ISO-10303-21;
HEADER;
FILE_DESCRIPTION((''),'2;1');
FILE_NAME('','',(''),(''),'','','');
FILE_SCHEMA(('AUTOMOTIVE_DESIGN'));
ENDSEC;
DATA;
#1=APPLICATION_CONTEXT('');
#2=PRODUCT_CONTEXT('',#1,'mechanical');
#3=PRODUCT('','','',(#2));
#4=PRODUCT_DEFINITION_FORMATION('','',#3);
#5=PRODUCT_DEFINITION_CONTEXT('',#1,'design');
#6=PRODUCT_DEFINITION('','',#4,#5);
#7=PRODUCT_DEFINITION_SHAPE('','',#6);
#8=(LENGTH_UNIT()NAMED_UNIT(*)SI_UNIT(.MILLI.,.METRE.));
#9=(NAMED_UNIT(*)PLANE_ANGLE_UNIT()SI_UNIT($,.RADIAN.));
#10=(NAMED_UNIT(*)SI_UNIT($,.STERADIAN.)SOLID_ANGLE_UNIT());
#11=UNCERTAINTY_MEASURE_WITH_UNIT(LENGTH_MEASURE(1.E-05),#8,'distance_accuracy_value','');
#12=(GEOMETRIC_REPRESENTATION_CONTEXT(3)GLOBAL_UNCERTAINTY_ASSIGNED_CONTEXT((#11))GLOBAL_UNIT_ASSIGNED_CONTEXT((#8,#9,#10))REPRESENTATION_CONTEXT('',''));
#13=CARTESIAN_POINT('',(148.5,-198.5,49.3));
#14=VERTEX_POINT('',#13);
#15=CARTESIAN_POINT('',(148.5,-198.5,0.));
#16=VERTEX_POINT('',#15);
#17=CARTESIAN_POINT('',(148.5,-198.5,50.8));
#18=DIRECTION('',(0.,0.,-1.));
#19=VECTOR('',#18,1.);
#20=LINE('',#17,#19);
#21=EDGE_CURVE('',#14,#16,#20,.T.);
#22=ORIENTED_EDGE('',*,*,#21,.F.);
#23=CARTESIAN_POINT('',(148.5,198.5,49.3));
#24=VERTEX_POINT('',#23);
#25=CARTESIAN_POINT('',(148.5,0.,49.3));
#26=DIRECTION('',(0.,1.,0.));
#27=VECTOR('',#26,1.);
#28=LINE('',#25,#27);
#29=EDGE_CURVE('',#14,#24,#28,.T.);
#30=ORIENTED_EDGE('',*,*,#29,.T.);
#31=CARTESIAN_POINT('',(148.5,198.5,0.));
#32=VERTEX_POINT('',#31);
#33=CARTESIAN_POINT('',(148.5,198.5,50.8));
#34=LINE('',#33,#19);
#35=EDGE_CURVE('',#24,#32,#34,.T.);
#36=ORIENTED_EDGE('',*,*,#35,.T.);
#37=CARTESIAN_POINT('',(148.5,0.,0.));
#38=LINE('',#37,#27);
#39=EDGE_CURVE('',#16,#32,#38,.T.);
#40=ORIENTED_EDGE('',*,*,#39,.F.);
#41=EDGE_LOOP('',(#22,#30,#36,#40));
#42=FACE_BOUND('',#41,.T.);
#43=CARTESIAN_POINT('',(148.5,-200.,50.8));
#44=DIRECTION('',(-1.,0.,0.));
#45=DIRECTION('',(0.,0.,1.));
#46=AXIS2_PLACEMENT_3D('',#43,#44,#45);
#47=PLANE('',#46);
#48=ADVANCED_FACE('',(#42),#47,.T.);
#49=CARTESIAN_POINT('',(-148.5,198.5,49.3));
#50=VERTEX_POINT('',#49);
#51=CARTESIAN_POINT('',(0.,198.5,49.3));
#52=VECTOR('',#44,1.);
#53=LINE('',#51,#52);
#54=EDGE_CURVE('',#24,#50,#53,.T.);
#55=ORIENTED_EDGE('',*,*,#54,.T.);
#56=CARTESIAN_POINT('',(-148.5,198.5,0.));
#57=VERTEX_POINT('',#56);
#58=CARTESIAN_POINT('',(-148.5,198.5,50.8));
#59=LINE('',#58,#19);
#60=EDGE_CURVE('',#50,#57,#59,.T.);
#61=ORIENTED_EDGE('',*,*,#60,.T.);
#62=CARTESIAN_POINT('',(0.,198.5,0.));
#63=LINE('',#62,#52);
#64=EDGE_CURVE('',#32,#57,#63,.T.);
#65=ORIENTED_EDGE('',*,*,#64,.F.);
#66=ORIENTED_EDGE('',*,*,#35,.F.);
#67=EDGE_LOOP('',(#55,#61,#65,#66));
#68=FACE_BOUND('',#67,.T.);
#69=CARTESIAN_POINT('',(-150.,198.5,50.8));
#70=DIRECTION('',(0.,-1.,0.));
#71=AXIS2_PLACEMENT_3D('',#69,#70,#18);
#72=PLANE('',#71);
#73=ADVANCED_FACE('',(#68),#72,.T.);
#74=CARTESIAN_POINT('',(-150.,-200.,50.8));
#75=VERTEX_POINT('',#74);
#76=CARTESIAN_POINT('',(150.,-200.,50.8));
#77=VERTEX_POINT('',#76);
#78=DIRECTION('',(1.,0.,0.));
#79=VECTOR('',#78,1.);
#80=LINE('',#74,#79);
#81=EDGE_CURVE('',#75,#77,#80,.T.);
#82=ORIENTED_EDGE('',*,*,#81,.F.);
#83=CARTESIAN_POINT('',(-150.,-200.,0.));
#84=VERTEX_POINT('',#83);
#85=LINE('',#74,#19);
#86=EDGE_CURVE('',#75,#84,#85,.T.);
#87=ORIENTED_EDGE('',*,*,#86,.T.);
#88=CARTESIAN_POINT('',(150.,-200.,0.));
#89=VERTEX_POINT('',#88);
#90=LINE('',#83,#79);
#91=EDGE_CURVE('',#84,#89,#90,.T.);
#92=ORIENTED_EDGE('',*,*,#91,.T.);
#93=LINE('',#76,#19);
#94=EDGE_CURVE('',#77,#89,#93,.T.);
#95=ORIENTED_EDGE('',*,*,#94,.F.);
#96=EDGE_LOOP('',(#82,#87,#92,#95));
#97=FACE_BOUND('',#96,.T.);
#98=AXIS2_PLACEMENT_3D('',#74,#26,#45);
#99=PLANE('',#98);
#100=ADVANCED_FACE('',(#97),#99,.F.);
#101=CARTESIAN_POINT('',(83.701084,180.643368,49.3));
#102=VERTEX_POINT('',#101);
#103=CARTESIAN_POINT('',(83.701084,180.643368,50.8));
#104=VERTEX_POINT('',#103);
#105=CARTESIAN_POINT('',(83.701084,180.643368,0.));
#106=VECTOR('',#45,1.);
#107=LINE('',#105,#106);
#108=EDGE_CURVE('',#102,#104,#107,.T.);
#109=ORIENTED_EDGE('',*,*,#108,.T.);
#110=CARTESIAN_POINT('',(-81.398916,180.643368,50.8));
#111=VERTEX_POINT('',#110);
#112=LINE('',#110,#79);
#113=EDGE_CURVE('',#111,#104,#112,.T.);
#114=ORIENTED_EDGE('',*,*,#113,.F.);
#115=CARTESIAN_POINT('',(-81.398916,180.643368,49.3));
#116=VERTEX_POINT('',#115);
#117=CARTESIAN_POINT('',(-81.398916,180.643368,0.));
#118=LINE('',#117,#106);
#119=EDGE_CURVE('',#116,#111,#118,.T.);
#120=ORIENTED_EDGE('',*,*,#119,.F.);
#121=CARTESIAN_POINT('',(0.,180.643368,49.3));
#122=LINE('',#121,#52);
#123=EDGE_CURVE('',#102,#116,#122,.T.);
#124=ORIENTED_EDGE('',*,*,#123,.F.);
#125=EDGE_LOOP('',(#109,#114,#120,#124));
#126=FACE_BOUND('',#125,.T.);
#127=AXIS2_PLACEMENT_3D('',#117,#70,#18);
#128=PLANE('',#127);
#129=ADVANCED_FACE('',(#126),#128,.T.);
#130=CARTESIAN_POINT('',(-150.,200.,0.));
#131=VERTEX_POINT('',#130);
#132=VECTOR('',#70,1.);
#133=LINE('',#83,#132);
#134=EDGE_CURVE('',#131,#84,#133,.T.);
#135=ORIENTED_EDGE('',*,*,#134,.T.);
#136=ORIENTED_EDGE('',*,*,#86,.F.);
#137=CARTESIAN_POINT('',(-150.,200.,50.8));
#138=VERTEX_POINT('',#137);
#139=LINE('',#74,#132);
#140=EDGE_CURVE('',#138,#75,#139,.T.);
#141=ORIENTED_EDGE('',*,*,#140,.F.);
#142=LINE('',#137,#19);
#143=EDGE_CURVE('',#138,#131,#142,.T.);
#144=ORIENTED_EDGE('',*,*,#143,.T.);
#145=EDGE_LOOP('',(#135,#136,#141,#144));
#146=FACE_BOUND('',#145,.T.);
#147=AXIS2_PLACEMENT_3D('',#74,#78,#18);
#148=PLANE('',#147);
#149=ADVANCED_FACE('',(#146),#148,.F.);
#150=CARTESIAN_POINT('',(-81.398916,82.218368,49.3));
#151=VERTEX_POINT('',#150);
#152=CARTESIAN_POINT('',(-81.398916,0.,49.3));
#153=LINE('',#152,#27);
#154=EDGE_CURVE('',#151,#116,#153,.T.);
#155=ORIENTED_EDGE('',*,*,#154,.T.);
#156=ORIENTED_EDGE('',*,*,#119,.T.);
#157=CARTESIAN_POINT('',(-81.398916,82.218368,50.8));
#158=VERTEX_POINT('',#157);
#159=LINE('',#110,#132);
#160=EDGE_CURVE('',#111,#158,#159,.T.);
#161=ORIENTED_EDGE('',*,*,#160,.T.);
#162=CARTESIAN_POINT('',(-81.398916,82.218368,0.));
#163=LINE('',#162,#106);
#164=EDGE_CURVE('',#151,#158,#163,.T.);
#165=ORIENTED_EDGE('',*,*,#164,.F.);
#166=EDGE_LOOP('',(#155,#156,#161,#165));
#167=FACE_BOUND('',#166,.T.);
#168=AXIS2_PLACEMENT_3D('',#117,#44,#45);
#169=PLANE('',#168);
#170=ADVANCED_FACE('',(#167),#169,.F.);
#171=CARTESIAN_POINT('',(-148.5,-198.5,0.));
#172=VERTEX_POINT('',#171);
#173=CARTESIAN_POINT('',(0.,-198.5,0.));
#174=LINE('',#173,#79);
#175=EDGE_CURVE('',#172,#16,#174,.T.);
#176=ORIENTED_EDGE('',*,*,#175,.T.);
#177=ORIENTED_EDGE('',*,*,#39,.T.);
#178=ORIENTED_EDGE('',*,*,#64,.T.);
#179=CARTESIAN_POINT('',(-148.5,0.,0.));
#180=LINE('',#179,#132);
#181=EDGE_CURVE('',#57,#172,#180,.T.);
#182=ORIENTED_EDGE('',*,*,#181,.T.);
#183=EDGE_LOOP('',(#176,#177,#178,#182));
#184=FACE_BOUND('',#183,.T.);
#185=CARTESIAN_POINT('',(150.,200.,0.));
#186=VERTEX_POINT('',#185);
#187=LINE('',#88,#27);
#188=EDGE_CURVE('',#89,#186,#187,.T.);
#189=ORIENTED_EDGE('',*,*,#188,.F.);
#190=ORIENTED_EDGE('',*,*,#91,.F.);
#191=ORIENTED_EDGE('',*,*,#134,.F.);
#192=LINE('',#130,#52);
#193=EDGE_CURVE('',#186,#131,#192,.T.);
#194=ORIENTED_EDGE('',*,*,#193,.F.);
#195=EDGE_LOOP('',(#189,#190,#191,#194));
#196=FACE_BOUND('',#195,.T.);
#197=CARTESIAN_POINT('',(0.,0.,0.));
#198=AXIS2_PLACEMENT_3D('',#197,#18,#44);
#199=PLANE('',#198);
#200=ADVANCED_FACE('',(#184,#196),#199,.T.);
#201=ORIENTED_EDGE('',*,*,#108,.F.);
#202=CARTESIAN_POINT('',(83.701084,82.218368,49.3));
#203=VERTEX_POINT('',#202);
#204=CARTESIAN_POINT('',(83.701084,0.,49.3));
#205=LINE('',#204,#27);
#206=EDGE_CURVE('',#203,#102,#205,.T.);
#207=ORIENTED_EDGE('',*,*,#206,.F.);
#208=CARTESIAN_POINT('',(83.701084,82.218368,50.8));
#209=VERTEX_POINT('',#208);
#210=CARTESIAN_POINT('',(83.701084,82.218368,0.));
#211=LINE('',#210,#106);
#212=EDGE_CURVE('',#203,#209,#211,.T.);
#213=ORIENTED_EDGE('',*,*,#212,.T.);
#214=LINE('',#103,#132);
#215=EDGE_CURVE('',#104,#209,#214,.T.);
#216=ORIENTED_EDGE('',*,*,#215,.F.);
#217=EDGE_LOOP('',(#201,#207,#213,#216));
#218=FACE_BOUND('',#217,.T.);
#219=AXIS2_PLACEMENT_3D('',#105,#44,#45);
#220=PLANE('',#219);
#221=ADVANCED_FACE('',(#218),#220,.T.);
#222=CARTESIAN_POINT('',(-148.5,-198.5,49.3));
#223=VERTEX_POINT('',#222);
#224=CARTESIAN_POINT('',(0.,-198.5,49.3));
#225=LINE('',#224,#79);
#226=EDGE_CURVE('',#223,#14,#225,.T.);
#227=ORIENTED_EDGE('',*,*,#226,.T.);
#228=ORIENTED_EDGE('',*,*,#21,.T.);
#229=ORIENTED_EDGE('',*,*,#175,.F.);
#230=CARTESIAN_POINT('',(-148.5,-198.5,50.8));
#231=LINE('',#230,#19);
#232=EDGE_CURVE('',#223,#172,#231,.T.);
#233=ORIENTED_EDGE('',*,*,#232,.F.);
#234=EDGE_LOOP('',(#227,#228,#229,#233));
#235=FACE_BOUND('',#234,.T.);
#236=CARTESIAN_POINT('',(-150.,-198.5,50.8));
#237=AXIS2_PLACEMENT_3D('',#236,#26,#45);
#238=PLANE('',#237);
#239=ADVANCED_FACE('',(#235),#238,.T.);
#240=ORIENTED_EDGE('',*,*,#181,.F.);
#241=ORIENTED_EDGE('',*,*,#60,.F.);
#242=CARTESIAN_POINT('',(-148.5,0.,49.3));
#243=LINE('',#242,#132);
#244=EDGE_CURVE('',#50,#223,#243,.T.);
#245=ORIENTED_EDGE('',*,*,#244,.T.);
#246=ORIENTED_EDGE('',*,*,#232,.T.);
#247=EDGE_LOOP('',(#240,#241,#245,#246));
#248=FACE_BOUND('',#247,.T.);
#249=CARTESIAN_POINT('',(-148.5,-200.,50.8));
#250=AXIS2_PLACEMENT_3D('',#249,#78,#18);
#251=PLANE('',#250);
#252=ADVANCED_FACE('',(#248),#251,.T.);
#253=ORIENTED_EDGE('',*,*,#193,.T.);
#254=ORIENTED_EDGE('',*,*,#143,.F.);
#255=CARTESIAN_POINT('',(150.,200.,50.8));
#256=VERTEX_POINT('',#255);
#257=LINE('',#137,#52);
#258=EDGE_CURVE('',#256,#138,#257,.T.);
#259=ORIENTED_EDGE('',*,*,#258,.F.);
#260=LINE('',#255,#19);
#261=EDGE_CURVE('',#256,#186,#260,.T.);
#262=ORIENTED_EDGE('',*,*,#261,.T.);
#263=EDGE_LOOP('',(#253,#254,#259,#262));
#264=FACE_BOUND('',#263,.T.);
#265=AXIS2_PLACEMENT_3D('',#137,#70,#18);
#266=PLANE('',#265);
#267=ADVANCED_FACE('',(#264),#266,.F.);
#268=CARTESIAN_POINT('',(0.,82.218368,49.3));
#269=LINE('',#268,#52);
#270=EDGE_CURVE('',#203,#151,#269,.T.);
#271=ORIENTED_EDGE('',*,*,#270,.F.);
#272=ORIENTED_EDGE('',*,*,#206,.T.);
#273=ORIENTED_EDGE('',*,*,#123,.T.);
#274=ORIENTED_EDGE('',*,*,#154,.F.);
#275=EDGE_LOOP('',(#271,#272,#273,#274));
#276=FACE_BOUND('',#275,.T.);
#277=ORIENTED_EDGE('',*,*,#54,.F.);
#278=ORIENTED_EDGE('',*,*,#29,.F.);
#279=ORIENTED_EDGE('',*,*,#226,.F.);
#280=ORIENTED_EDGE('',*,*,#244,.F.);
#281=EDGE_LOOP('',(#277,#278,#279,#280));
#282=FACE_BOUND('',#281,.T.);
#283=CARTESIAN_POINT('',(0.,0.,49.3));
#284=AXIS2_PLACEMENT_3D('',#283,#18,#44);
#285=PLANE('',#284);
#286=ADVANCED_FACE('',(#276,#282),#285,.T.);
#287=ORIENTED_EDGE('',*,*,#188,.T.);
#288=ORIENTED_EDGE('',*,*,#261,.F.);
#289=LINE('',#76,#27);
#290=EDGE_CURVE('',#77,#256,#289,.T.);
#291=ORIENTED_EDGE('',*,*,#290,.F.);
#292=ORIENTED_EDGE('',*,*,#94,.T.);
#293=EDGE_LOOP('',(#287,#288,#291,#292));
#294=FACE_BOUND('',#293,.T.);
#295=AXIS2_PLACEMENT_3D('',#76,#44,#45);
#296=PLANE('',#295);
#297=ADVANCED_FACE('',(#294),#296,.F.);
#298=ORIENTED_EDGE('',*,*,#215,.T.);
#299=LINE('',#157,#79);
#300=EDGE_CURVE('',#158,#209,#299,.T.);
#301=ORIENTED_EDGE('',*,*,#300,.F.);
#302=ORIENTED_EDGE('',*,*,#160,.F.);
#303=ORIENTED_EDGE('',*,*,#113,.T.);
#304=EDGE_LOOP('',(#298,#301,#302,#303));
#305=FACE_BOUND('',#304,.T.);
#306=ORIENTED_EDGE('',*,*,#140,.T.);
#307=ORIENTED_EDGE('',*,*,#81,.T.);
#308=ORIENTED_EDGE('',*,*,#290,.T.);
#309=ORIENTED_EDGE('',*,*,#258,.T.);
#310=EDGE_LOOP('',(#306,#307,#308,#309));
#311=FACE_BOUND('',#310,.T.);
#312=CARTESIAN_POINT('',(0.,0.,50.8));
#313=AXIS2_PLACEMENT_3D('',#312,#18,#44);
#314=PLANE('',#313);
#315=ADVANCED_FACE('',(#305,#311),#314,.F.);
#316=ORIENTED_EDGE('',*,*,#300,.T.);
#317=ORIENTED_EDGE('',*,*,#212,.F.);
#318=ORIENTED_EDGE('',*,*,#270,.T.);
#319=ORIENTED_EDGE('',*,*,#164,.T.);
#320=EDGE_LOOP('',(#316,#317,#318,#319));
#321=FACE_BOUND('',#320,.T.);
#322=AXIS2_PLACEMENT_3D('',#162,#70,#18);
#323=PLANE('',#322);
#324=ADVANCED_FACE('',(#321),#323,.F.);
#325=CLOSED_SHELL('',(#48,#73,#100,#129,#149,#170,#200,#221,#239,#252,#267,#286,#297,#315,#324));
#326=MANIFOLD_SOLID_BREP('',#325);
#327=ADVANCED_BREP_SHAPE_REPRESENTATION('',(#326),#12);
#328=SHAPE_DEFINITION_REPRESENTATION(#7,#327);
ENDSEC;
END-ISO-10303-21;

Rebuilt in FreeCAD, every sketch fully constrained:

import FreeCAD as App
import Part
import Sketcher
from FreeCAD import Vector
Q = App.Units.Quantity


def faces_at(feature, points):
    """Names of the faces that lie closest to the given points."""
    faces = feature.Shape.Faces
    near = lambda p: min(range(len(faces)), key=lambda i: faces[i].distToShape(Part.Vertex(*p))[0])
    return sorted({f"Face{near(p) + 1}" for p in points})


def add_polygon(sketch, points):
    """Adds a closed chain of lines whose ends are joined by coincident constraints."""
    first, n = sketch.GeometryCount, len(points)
    for a, b in zip(points, points[1:] + points[:1]):
        sketch.addGeometry(Part.LineSegment(App.Vector(*a, 0), App.Vector(*b, 0)), False)
    for i in range(n):
        sketch.addConstraint(Sketcher.Constraint("Coincident", first + i, 2, first + (i + 1) % n, 1))

doc = App.newDocument("Part")
body = doc.addObject("PartDesign::Body", "Body")

sketch1 = body.newObject("Sketcher::SketchObject", "Sketch")
sketch1.AttachmentSupport = (doc.getObject("XY_Plane"), [""])
sketch1.MapMode = "FlatFace"
add_polygon(sketch1, [(-150, 200), (-150, -200), (150, -200), (150, 200)])
sketch1.addConstraint([
    Sketcher.Constraint("Vertical", 0),
    Sketcher.Constraint("Horizontal", 1),
    Sketcher.Constraint("Vertical", 2),
    Sketcher.Constraint("Horizontal", 3),
    Sketcher.Constraint("Symmetric", 0, 2, 2, 2, -1, 1),
    Sketcher.Constraint("DistanceX", 1, 1, 1, 2, Q("300 mm")),
    Sketcher.Constraint("DistanceY", 0, 2, 0, 1, Q("400 mm")),
])
pad1 = body.newObject("PartDesign::Pad", "Pad")
pad1.Profile = sketch1
pad1.Length = 50.8
doc.recompute()

thickness = body.newObject("PartDesign::Thickness", "Thickness")
thickness.Base = (pad1, faces_at(pad1, [(0, 0, 0)]))
thickness.Value = 1.5
thickness.Reversed = True
thickness.Join = "Intersection"

sketch2 = body.newObject("Sketcher::SketchObject", "Sketch001")
sketch2.AttachmentSupport = (doc.getObject("XY_Plane"), [""])
sketch2.MapMode = "FlatFace"
sketch2.AttachmentOffset = App.Placement(Vector(0, 0, 50.8), App.Rotation())
add_polygon(sketch2, [(-81, 181), (-81, 82), (84, 82), (84, 181)])
sketch2.addConstraint([
    Sketcher.Constraint("Vertical", 0),
    Sketcher.Constraint("Horizontal", 1),
    Sketcher.Constraint("Vertical", 2),
    Sketcher.Constraint("Horizontal", 3),
    Sketcher.Constraint("DistanceX", 1, 1, 1, 2, Q("165.1 mm")),
    Sketcher.Constraint("DistanceY", 0, 2, 0, 1, Q("98.425 mm")),
    Sketcher.Constraint("DistanceY", -1, 1, 0, 2, Q("82.218368 mm")),
    Sketcher.Constraint("DistanceX", 0, 2, -1, 1, Q("81.398916 mm")),
])
pocket1 = body.newObject("PartDesign::Pocket", "Pocket")
pocket1.Profile = sketch2
pocket1.Type = "ThroughAll"

doc.recompute()
